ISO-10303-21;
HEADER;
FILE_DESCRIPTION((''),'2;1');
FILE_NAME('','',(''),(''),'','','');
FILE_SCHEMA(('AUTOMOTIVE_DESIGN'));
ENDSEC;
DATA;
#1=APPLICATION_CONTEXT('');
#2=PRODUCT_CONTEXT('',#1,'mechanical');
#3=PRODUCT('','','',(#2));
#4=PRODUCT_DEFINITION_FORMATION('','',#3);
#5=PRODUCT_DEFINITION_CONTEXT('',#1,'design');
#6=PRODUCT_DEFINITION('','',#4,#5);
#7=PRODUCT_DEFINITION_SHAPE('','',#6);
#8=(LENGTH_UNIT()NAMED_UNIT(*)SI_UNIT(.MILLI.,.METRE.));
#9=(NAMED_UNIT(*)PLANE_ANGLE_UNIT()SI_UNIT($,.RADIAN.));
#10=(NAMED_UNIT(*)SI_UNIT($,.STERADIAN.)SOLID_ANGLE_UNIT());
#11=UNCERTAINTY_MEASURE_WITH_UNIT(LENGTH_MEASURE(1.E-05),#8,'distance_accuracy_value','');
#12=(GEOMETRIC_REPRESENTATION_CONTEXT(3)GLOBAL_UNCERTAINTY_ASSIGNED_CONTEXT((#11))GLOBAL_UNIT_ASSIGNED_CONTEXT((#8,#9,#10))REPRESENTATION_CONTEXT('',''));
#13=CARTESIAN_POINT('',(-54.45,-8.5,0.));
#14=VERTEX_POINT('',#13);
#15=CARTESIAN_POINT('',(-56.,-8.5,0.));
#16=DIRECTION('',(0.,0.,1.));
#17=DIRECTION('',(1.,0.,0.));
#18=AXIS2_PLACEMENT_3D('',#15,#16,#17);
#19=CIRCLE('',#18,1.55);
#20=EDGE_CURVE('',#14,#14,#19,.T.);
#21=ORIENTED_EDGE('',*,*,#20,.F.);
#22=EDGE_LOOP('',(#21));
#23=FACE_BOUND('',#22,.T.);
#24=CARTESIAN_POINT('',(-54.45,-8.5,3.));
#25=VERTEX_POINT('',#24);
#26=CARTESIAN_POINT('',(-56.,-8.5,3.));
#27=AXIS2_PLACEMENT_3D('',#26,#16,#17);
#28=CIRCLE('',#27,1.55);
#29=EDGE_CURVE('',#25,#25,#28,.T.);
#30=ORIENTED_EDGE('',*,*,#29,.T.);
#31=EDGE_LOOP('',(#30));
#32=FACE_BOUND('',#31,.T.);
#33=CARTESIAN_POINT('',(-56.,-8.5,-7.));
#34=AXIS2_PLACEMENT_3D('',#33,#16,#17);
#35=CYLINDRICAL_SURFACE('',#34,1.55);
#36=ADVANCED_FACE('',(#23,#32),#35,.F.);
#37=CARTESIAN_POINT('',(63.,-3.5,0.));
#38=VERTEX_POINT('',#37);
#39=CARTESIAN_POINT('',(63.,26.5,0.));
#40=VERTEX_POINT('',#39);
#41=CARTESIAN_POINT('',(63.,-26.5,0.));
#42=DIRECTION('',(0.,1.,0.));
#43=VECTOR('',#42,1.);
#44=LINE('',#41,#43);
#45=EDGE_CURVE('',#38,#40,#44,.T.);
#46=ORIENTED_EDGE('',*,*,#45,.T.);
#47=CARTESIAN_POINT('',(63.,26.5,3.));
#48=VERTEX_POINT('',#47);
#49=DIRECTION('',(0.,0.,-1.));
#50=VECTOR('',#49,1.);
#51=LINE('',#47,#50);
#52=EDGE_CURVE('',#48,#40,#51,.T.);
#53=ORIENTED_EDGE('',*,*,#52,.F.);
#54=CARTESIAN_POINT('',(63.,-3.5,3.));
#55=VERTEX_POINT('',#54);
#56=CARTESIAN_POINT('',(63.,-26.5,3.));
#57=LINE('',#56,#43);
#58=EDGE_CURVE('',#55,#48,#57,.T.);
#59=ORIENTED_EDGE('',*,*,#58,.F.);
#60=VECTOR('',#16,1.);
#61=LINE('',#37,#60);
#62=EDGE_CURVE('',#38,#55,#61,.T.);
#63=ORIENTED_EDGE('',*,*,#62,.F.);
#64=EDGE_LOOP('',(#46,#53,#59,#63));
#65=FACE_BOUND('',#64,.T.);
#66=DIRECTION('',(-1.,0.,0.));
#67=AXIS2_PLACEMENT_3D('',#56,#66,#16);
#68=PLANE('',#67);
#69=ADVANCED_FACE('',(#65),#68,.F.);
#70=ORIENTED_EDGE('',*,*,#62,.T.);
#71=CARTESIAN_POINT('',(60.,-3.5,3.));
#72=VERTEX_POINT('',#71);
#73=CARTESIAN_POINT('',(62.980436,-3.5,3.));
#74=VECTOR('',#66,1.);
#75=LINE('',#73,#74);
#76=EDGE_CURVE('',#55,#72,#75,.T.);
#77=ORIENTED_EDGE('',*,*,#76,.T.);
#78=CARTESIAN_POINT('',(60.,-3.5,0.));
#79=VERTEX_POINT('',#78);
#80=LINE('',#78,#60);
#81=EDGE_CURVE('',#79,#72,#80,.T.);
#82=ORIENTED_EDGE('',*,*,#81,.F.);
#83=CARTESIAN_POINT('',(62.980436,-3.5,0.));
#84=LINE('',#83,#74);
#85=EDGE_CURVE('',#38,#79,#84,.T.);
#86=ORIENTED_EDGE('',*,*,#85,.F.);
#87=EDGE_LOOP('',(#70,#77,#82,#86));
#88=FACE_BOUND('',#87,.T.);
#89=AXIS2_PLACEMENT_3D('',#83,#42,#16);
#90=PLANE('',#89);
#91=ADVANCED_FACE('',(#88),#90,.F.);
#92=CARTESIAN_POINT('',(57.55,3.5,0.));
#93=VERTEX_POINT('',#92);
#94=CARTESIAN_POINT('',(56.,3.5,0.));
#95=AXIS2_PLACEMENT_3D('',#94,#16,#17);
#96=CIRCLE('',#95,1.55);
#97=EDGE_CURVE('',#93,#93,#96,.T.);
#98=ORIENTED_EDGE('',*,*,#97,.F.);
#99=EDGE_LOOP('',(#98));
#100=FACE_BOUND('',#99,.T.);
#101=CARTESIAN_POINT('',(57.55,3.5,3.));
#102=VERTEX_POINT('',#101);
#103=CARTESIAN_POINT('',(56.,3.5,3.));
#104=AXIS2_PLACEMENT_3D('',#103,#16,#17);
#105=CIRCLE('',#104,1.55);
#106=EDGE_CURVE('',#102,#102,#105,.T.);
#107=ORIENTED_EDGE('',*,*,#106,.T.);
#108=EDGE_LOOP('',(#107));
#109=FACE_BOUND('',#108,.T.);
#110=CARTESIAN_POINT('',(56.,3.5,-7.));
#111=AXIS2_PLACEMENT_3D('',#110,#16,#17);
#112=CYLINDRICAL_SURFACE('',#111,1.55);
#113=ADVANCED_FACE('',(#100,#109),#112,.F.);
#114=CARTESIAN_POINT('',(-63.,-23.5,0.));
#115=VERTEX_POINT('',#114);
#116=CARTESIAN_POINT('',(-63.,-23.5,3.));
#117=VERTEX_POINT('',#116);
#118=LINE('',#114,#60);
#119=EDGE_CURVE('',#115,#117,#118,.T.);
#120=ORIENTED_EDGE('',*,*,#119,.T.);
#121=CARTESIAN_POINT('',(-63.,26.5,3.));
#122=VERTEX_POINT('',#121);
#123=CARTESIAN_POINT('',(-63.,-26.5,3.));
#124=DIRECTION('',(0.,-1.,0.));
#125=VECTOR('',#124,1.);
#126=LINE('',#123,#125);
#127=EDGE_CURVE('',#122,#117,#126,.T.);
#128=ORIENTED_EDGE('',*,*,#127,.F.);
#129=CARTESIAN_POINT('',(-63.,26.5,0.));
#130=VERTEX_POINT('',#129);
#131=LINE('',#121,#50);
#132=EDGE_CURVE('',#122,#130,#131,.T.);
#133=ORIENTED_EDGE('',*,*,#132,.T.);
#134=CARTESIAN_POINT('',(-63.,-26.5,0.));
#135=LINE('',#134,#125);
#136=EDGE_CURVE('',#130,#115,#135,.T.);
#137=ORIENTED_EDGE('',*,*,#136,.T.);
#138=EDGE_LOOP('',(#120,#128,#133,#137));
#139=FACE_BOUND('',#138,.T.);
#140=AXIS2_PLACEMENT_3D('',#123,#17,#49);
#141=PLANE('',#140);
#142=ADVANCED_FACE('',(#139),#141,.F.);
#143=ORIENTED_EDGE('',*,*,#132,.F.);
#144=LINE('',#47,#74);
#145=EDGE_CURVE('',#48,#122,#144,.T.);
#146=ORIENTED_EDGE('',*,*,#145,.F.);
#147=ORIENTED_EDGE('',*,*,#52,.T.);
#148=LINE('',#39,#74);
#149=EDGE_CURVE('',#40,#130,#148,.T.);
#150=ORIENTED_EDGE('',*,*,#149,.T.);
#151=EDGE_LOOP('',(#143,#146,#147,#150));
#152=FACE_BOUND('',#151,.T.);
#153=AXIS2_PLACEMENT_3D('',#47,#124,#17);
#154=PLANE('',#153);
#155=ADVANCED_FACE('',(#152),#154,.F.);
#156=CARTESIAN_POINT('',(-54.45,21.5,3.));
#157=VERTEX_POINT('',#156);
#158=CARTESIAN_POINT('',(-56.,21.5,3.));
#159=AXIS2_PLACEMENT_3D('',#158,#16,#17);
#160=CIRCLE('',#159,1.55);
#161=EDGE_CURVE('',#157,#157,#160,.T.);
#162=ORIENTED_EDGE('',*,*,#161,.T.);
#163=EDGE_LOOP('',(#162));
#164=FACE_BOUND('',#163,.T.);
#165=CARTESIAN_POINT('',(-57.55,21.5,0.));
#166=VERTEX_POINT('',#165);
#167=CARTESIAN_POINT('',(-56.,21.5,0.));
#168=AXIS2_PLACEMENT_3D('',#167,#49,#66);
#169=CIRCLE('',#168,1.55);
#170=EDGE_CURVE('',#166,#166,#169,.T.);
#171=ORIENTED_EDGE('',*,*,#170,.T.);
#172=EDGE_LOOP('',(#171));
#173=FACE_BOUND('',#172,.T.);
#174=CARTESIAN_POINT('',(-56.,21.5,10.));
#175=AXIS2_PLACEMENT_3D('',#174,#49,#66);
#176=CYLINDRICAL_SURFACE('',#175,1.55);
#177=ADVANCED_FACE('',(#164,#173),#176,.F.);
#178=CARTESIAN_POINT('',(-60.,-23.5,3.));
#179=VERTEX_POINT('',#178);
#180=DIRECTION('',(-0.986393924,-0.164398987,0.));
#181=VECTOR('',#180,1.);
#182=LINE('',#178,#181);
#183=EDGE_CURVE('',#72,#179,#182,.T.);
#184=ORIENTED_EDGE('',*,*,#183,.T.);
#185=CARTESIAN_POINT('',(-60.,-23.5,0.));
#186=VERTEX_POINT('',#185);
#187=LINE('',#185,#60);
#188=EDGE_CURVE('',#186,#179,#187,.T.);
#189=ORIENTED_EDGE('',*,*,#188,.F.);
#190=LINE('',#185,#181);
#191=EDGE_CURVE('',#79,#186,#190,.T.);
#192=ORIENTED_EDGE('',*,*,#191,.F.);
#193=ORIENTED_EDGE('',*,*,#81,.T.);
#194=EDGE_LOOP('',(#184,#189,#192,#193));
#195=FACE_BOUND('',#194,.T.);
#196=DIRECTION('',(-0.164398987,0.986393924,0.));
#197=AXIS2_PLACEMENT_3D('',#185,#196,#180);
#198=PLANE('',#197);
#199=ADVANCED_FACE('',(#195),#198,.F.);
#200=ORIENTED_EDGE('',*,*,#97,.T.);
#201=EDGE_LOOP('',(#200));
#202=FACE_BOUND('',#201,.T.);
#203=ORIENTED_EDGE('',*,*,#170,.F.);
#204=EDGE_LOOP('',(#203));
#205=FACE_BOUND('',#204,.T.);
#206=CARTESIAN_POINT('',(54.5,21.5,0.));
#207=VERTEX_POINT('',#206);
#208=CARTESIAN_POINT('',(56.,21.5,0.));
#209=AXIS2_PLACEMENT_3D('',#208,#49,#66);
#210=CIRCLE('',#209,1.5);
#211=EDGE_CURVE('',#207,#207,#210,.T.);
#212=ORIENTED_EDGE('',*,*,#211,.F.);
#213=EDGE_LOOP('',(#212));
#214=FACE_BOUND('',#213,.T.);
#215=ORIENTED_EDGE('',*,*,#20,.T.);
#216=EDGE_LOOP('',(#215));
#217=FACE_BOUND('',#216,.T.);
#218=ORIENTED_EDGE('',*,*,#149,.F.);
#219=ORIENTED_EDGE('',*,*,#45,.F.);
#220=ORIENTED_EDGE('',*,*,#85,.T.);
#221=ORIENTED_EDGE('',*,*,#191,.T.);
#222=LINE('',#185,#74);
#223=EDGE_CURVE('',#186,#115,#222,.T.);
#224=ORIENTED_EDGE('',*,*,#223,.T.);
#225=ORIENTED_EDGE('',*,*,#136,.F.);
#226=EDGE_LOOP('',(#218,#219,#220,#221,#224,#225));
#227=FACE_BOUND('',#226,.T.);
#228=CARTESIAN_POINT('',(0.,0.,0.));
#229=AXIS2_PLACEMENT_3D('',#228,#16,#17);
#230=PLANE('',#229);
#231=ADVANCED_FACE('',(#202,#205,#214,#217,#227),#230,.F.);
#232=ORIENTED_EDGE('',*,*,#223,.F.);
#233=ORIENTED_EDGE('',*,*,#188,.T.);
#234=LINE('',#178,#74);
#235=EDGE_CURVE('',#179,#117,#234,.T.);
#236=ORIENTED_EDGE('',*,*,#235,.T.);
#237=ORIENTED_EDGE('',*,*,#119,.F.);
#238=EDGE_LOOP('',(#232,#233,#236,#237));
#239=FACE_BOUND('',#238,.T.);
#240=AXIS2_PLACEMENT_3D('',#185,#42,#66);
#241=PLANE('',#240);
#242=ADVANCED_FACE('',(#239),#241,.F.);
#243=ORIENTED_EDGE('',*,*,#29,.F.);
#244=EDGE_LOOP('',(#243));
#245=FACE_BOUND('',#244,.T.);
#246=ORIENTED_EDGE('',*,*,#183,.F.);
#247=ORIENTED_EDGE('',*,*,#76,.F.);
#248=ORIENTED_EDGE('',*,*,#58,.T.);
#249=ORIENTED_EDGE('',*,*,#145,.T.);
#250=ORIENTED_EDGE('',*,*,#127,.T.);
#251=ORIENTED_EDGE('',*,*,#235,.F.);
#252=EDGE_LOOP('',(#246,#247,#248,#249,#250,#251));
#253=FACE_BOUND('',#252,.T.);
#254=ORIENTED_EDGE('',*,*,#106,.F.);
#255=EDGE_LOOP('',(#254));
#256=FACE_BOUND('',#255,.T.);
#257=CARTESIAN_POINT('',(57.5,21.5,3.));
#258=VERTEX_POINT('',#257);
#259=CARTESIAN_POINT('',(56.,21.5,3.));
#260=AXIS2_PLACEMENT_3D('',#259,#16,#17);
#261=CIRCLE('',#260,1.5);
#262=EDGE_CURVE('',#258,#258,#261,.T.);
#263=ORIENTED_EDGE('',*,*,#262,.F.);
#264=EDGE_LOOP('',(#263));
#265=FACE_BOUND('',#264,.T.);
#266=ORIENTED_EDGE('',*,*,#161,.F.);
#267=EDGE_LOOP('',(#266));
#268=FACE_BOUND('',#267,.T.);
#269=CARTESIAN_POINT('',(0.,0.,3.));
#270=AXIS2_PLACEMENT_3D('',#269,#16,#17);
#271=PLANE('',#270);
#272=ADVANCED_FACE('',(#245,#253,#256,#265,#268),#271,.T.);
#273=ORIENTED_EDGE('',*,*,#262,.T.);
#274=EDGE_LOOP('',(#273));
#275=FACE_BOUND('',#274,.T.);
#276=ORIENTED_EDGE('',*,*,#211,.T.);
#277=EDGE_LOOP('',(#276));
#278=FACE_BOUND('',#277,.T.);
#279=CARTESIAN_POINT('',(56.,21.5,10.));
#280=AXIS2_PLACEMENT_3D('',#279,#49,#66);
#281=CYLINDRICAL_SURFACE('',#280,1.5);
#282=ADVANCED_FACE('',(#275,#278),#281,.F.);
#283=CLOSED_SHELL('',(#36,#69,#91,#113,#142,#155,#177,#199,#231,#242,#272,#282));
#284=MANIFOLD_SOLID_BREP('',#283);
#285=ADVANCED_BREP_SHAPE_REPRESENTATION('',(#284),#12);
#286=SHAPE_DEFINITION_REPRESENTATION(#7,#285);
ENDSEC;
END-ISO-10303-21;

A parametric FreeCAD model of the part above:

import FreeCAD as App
import Part
import Sketcher
from FreeCAD import Vector

doc = App.newDocument("Part")
params = doc.addObject("Spreadsheet::Sheet", "Params")
for row, (alias, value) in enumerate([
    ("sketch1_width", "126 mm"),
    ("sketch1_height", "53 mm"),
    ("pad1_length", "3 mm"),
    ("sketch2_diameter", "3 mm"),
    ("sketch2_diameter2", "3.1 mm"),
    ("pocket1_length", "10 mm"),
    ("sketch3_diameter", "3.1 mm"),
    ("pocket2_length", "10 mm"),
    ("sketch4_diameter", "3.1 mm"),
    ("pocket3_length", "10 mm"),
    ("sketch5_width", "3 mm"),
    ("sketch5_width2", "126 mm"),
    ("sketch5_height", "23 mm"),
], start=1):
    params.set(f"A{row}", alias)
    params.set(f"B{row}", "=" + value)
    params.setAlias(f"B{row}", alias)

body = doc.addObject("PartDesign::Body", "Body")

# Sketch on XY plane
sketch1 = body.newObject("Sketcher::SketchObject", "Sketch")
sketch1.AttachmentSupport = (doc.getObject("XY_Plane"), [""])
sketch1.MapMode = "FlatFace"
sketch1.addGeometry(Part.LineSegment(Vector(-63, 26.5, 0), Vector(-63, -26.5, 0)), False)
sketch1.addGeometry(Part.LineSegment(Vector(-63, -26.5, 0), Vector(63, -26.5, 0)), False)
sketch1.addGeometry(Part.LineSegment(Vector(63, -26.5, 0), Vector(63, 26.5, 0)), False)
sketch1.addGeometry(Part.LineSegment(Vector(63, 26.5, 0), Vector(-63, 26.5, 0)), False)
sketch1.addConstraint(Sketcher.Constraint("Coincident", 0, 2, 1, 1))
sketch1.addConstraint(Sketcher.Constraint("Coincident", 1, 2, 2, 1))
sketch1.addConstraint(Sketcher.Constraint("Coincident", 2, 2, 3, 1))
sketch1.addConstraint(Sketcher.Constraint("Coincident", 3, 2, 0, 1))
sketch1.addConstraint(Sketcher.Constraint("Vertical", 0))
sketch1.addConstraint(Sketcher.Constraint("Horizontal", 1))
sketch1.addConstraint(Sketcher.Constraint("Vertical", 2))
sketch1.addConstraint(Sketcher.Constraint("Horizontal", 3))
sketch1.addConstraint(Sketcher.Constraint("Symmetric", 0, 2, 2, 2, -1, 1))
sketch1.addConstraint(Sketcher.Constraint("DistanceX", 1, 1, 1, 2, 126.0))
sketch1.addConstraint(Sketcher.Constraint("DistanceY", 0, 2, 0, 1, 53.0))
sketch1.setExpression("Constraints[9]", "Params.sketch1_width")
sketch1.setExpression("Constraints[10]", "Params.sketch1_height")
pad1 = body.newObject("PartDesign::Pad", "Pad")
pad1.Profile = sketch1
pad1.setExpression("Length", "Params.pad1_length")

# Sketch on XY plane
sketch2 = body.newObject("Sketcher::SketchObject", "Sketch001")
sketch2.AttachmentSupport = (doc.getObject("XY_Plane"), [""])
sketch2.MapMode = "FlatFace"
sketch2.addGeometry(Part.Circle(Vector(-56, 21.5, 0), Vector(0, 0, 1), 1.55), False)
sketch2.addGeometry(Part.Circle(Vector(56, 21.5, 0), Vector(0, 0, 1), 1.5), False)
sketch2.addConstraint(Sketcher.Constraint("Symmetric", 0, 3, 1, 3, -2))
sketch2.addConstraint(Sketcher.Constraint("Diameter", 1, 3.0))
sketch2.addConstraint(Sketcher.Constraint("Diameter", 0, 3.1))
sketch2.addConstraint(Sketcher.Constraint("DistanceX", 0, 3, -1, 1, 56.0))
sketch2.addConstraint(Sketcher.Constraint("DistanceY", -1, 1, 0, 3, 21.5))
sketch2.setExpression("Constraints[1]", "Params.sketch2_diameter")
sketch2.setExpression("Constraints[2]", "Params.sketch2_diameter2")
pocket1 = body.newObject("PartDesign::Pocket", "Pocket")
pocket1.Profile = sketch2
pocket1.setExpression("Length", "Params.pocket1_length")
pocket1.Reversed = True

# Sketch on XY plane
sketch3 = body.newObject("Sketcher::SketchObject", "Sketch002")
sketch3.AttachmentSupport = (doc.getObject("XY_Plane"), [""])
sketch3.MapMode = "FlatFace"
sketch3.AttachmentOffset = App.Placement(Vector(0, 0, 3), App.Rotation())
sketch3.addGeometry(Part.Circle(Vector(-56, -8.5, 0), Vector(0, 0, 1), 1.55), False)
sketch3.addGeometry(Part.Circle(Vector(56, -8.5, 0), Vector(0, 0, 1), 1.55), False)
sketch3.addConstraint(Sketcher.Constraint("Equal", 0, 1))
sketch3.addConstraint(Sketcher.Constraint("Symmetric", 0, 3, 1, 3, -2))
sketch3.addConstraint(Sketcher.Constraint("Diameter", 0, 3.1))
sketch3.addConstraint(Sketcher.Constraint("DistanceX", 0, 3, -1, 1, 56.0))
sketch3.addConstraint(Sketcher.Constraint("DistanceY", 0, 3, -1, 1, 8.5))
sketch3.setExpression("Constraints[2]", "Params.sketch3_diameter")
pocket2 = body.newObject("PartDesign::Pocket", "Pocket001")
pocket2.Profile = sketch3
pocket2.setExpression("Length", "Params.pocket2_length")

# Sketch on XY plane
sketch4 = body.newObject("Sketcher::SketchObject", "Sketch003")
sketch4.AttachmentSupport = (doc.getObject("XY_Plane"), [""])
sketch4.MapMode = "FlatFace"
sketch4.AttachmentOffset = App.Placement(Vector(0, 0, 3), App.Rotation())
sketch4.addGeometry(Part.Circle(Vector(56, 3.5, 0), Vector(0, 0, 1), 1.55), False)
sketch4.addConstraint(Sketcher.Constraint("Diameter", 0, 3.1))
sketch4.addConstraint(Sketcher.Constraint("DistanceX", -1, 1, 0, 3, 56.0))
sketch4.addConstraint(Sketcher.Constraint("DistanceY", -1, 1, 0, 3, 3.5))
sketch4.setExpression("Constraints[0]", "Params.sketch4_diameter")
pocket3 = body.newObject("PartDesign::Pocket", "Pocket002")
pocket3.Profile = sketch4
pocket3.setExpression("Length", "Params.pocket3_length")

# Sketch on XY plane
sketch5 = body.newObject("Sketcher::SketchObject", "Sketch004")
sketch5.AttachmentSupport = (doc.getObject("XY_Plane"), [""])
sketch5.MapMode = "FlatFace"
sketch5.AttachmentOffset = App.Placement(Vector(0, 0, 3), App.Rotation())
sketch5.addGeometry(Part.LineSegment(Vector(60, -3.5, 0), Vector(-60, -23.5, 0)), False)
sketch5.addGeometry(Part.LineSegment(Vector(-60, -23.5, 0), Vector(-63, -23.5, 0)), False)
sketch5.addGeometry(Part.LineSegment(Vector(-63, -23.5, 0), Vector(-63, -26.5, 0)), False)
sketch5.addGeometry(Part.LineSegment(Vector(-63, -26.5, 0), Vector(63, -26.5, 0)), False)
sketch5.addGeometry(Part.LineSegment(Vector(63, -26.5, 0), Vector(63, -3.5, 0)), False)
sketch5.addGeometry(Part.LineSegment(Vector(63, -3.5, 0), Vector(60, -3.5, 0)), False)
sketch5.addConstraint(Sketcher.Constraint("Coincident", 0, 2, 1, 1))
sketch5.addConstraint(Sketcher.Constraint("Coincident", 1, 2, 2, 1))
sketch5.addConstraint(Sketcher.Constraint("Coincident", 2, 2, 3, 1))
sketch5.addConstraint(Sketcher.Constraint("Coincident", 3, 2, 4, 1))
sketch5.addConstraint(Sketcher.Constraint("Coincident", 4, 2, 5, 1))
sketch5.addConstraint(Sketcher.Constraint("Coincident", 5, 2, 0, 1))
sketch5.addConstraint(Sketcher.Constraint("Horizontal", 1))
sketch5.addConstraint(Sketcher.Constraint("Vertical", 2))
sketch5.addConstraint(Sketcher.Constraint("Horizontal", 3))
sketch5.addConstraint(Sketcher.Constraint("Vertical", 4))
sketch5.addConstraint(Sketcher.Constraint("Horizontal", 5))
sketch5.addConstraint(Sketcher.Constraint("Equal", 1, 5))
sketch5.addConstraint(Sketcher.Constraint("Equal", 5, 2))
sketch5.addConstraint(Sketcher.Constraint("DistanceX", 1, 2, 1, 1, 3.0))
sketch5.addConstraint(Sketcher.Constraint("DistanceX", 3, 1, 3, 2, 126.0))
sketch5.addConstraint(Sketcher.Constraint("DistanceY", 4, 1, 4, 2, 23.0))
sketch5.addConstraint(Sketcher.Constraint("DistanceX", 0, 2, -1, 1, 60.0))
sketch5.addConstraint(Sketcher.Constraint("DistanceY", 0, 2, -1, 1, 23.5))
sketch5.setExpression("Constraints[13]", "Params.sketch5_width")
sketch5.setExpression("Constraints[14]", "Params.sketch5_width2")
sketch5.setExpression("Constraints[15]", "Params.sketch5_height")
pocket4 = body.newObject("PartDesign::Pocket", "Pocket003")
pocket4.Profile = sketch5
pocket4.Type = "ThroughAll"

doc.recompute()
